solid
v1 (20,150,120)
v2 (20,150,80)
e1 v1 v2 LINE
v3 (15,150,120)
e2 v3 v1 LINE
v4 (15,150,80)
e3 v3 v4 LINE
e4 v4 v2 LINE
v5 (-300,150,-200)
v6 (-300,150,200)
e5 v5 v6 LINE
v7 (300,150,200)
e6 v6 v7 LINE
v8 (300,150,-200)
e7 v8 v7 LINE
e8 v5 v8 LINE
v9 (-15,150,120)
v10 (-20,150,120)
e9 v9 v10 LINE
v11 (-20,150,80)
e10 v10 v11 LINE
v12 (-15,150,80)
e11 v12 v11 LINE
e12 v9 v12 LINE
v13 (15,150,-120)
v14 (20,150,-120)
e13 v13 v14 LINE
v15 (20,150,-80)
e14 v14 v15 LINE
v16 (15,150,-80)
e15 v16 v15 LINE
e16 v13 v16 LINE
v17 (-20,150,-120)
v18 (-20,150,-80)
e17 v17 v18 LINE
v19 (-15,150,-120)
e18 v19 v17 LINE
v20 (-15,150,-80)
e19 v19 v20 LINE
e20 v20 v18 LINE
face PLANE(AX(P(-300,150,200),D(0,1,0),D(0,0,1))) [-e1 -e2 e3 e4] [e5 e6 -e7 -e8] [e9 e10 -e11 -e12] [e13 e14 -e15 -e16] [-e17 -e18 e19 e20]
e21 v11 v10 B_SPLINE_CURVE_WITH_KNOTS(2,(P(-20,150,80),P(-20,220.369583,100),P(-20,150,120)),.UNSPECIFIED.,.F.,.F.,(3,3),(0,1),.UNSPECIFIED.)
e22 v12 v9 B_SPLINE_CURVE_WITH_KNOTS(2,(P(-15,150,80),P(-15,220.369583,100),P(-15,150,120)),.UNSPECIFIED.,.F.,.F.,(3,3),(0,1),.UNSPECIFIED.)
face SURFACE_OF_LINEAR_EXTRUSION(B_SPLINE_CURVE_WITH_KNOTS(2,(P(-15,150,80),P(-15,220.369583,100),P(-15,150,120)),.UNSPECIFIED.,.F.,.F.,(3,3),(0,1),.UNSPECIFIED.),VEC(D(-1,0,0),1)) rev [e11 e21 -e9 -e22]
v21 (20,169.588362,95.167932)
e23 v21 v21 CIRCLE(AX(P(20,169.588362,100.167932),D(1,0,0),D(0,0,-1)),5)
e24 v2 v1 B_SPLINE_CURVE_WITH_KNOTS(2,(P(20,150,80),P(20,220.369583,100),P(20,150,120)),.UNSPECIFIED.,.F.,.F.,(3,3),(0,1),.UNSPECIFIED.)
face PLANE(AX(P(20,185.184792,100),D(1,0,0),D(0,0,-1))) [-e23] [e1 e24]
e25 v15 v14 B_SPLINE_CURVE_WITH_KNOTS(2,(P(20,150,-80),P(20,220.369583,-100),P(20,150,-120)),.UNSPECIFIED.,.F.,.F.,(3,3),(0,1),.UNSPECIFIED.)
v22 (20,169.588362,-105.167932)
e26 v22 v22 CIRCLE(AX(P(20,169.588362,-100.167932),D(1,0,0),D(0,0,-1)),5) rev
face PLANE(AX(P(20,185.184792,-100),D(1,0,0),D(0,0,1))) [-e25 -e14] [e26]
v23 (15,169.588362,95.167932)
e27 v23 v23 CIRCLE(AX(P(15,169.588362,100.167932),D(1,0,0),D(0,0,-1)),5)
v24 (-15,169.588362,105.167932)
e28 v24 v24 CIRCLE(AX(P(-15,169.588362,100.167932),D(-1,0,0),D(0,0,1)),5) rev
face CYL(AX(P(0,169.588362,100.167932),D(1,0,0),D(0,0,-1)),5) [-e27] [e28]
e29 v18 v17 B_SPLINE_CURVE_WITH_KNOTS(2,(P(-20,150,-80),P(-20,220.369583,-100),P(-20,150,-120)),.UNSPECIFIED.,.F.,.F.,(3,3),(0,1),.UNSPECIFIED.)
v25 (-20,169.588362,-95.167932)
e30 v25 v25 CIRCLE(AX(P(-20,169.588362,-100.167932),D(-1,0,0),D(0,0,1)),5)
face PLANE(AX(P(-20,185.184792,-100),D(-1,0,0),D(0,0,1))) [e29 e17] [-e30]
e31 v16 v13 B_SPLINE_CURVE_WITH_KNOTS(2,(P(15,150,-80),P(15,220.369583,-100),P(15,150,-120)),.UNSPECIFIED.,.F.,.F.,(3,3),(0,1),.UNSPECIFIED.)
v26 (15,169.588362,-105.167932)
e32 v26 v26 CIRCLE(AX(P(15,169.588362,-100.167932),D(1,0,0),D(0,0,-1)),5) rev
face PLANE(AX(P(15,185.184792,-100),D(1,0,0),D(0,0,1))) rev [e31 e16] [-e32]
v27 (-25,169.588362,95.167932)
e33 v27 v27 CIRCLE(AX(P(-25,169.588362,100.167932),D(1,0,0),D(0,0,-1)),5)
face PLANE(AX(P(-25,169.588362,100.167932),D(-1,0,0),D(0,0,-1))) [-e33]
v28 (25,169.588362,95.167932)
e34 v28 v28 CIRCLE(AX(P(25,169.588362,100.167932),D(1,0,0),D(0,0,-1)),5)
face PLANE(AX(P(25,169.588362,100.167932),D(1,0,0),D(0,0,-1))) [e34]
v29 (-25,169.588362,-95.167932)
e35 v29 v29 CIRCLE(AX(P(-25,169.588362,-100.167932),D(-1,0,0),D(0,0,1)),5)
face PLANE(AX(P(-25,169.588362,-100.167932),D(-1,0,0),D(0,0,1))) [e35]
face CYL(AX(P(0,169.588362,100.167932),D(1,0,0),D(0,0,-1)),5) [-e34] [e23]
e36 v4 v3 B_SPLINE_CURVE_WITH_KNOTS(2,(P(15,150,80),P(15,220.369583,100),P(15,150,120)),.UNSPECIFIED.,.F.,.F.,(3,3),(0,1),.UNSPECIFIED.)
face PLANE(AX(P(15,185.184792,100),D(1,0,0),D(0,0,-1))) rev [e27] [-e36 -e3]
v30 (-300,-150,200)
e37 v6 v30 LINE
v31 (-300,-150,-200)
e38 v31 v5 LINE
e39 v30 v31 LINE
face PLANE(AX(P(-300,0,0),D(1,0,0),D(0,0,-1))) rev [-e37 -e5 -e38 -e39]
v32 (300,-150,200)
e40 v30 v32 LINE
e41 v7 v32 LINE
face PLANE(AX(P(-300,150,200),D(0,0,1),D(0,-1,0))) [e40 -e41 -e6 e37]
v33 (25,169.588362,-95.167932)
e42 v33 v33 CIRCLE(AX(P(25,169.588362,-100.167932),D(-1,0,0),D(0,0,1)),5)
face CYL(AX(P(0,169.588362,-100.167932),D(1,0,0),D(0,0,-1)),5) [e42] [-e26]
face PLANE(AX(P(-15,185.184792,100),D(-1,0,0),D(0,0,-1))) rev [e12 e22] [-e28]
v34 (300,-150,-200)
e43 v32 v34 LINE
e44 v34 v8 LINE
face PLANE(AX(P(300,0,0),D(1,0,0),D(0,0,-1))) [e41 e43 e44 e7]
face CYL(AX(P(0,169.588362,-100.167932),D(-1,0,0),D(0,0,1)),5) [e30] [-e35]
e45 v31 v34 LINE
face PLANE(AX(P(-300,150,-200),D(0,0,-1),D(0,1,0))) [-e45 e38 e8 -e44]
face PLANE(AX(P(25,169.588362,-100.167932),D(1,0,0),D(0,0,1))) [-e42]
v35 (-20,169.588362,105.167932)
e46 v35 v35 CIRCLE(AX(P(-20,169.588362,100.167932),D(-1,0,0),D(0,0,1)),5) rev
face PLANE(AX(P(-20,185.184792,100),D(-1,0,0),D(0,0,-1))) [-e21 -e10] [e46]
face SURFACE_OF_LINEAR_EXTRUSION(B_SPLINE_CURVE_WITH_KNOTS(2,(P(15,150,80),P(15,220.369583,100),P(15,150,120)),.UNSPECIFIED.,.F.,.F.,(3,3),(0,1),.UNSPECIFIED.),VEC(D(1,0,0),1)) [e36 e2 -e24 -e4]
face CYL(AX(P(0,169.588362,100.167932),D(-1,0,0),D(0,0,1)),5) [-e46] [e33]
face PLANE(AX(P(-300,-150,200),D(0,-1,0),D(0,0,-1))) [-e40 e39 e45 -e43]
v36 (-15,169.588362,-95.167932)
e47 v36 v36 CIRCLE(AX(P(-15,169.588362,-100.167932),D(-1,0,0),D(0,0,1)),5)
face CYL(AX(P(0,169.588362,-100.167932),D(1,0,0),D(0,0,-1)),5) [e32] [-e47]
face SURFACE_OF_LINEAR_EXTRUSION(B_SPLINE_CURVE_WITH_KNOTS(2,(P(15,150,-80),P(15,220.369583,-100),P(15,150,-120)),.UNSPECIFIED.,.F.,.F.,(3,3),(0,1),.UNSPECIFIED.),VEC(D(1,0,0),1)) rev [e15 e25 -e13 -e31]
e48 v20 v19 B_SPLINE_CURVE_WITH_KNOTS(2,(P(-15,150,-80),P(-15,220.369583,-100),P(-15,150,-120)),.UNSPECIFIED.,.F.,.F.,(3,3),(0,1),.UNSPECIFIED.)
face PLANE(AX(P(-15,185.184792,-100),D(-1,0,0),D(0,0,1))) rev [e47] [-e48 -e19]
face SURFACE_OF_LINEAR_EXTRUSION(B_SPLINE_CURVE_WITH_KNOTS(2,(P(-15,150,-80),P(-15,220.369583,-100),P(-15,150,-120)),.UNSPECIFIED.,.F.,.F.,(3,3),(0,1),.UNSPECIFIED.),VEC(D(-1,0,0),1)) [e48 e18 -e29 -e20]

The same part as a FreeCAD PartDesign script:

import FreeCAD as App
import Part
import Sketcher
from FreeCAD import Vector

doc = App.newDocument("Part")
params = doc.addObject("Spreadsheet::Sheet", "Params")
for row, (alias, value) in enumerate([
    ("sketch1_width", "300 mm"),
    ("sketch1_height", "400 mm"),
    ("pad1_length", "300 mm"),
    ("pad1_length2", "300 mm"),
    ("pad2_length", "5 mm"),
    ("sketch3_diameter", "10 mm"),
    ("pad3_length", "25 mm"),
    ("pad4_length", "5 mm"),
    ("sketch5_diameter", "10 mm"),
    ("pad5_length", "25 mm"),
], start=1):
    params.set(f"A{row}", alias)
    params.set(f"B{row}", "=" + value)
    params.setAlias(f"B{row}", alias)

body = doc.addObject("PartDesign::Body", "Body")

# Sketch on YZ plane
sketch1 = body.newObject("Sketcher::SketchObject", "Sketch")
sketch1.AttachmentSupport = (doc.getObject("YZ_Plane"), [""])
sketch1.MapMode = "FlatFace"
sketch1.addGeometry(Part.LineSegment(Vector(150, 200, 0), Vector(-150, 200, 0)), False)
sketch1.addGeometry(Part.LineSegment(Vector(-150, 200, 0), Vector(-150, -200, 0)), False)
sketch1.addGeometry(Part.LineSegment(Vector(-150, -200, 0), Vector(150, -200, 0)), False)
sketch1.addGeometry(Part.LineSegment(Vector(150, -200, 0), Vector(150, 200, 0)), False)
sketch1.addConstraint(Sketcher.Constraint("Coincident", 0, 2, 1, 1))
sketch1.addConstraint(Sketcher.Constraint("Coincident", 1, 2, 2, 1))
sketch1.addConstraint(Sketcher.Constraint("Coincident", 2, 2, 3, 1))
sketch1.addConstraint(Sketcher.Constraint("Coincident", 3, 2, 0, 1))
sketch1.addConstraint(Sketcher.Constraint("Horizontal", 0))
sketch1.addConstraint(Sketcher.Constraint("Vertical", 1))
sketch1.addConstraint(Sketcher.Constraint("Horizontal", 2))
sketch1.addConstraint(Sketcher.Constraint("Vertical", 3))
sketch1.addConstraint(Sketcher.Constraint("Symmetric", 0, 2, 2, 2, -1, 1))
sketch1.addConstraint(Sketcher.Constraint("DistanceX", 0, 2, 0, 1, 300.0))
sketch1.addConstraint(Sketcher.Constraint("DistanceY", 1, 2, 1, 1, 400.0))
sketch1.setExpression("Constraints[9]", "Params.sketch1_width")
sketch1.setExpression("Constraints[10]", "Params.sketch1_height")
pad1 = body.newObject("PartDesign::Pad", "Pad")
pad1.Profile = sketch1
pad1.Type = "TwoLengths"
pad1.setExpression("Length", "Params.pad1_length")
pad1.setExpression("Length2", "Params.pad1_length2")

# Sketch on YZ plane
sketch2 = body.newObject("Sketcher::SketchObject", "Sketch001")
sketch2.AttachmentSupport = (doc.getObject("YZ_Plane"), [""])
sketch2.MapMode = "FlatFace"
sketch2.AttachmentOffset = App.Placement(Vector(0, 0, 20), App.Rotation())
sketch2.addGeometry(Part.LineSegment(Vector(150, 120, 0), Vector(150, 80, 0)), False)
sketch2.addGeometry(Part.BSplineCurve([Vector(150, 120, 0), Vector(220.369583, 100, 0), Vector(150, 80, 0)], [3, 3], [0, 1], False, 2, [1, 1, 1], False), False)
sketch2.addConstraint(Sketcher.Constraint("Block", 1))
sketch2.addConstraint(Sketcher.Constraint("Coincident", 0, 1, 1, 1))
sketch2.addConstraint(Sketcher.Constraint("Coincident", 1, 2, 0, 2))
pad2 = body.newObject("PartDesign::Pad", "Pad001")
pad2.Profile = sketch2
pad2.setExpression("Length", "Params.pad2_length")
pad2.Reversed = True

# Sketch on YZ plane
sketch3 = body.newObject("Sketcher::SketchObject", "Sketch002")
sketch3.AttachmentSupport = (doc.getObject("YZ_Plane"), [""])
sketch3.MapMode = "FlatFace"
sketch3.addGeometry(Part.Circle(Vector(170, 100, 0), Vector(0, 0, 1), 5), False)
sketch3.addConstraint(Sketcher.Constraint("Diameter", 0, 10.0))
sketch3.addConstraint(Sketcher.Constraint("DistanceY", -1, 1, 0, 3, 100.167932))
sketch3.addConstraint(Sketcher.Constraint("DistanceX", -1, 1, 0, 3, 169.588362))
sketch3.setExpression("Constraints[0]", "Params.sketch3_diameter")
pad3 = body.newObject("PartDesign::Pad", "Pad002")
pad3.Profile = sketch3
pad3.setExpression("Length", "Params.pad3_length")
doc.recompute()

mirrored = body.newObject("PartDesign::Mirrored", "Mirrored")
mirrored.Originals = [pad2, pad3]
mirrored.MirrorPlane = (doc.getObject("YZ_Plane"), [""])
body.Tip = mirrored
doc.recompute()

mirrored2 = body.newObject("PartDesign::Mirrored", "Mirrored001")
mirrored2.Originals = [pad3, pad2]
mirrored2.MirrorPlane = (doc.getObject("XY_Plane"), [""])
body.Tip = mirrored2

# Sketch on YZ plane
sketch4 = body.newObject("Sketcher::SketchObject", "Sketch003")
sketch4.AttachmentSupport = (doc.getObject("YZ_Plane"), [""])
sketch4.MapMode = "FlatFace"
sketch4.AttachmentOffset = App.Placement(Vector(0, 0, -20), App.Rotation())
sketch4.addGeometry(Part.LineSegment(Vector(150, -120, 0), Vector(150, -80, 0)), False)
sketch4.addGeometry(Part.BSplineCurve([Vector(150, -120, 0), Vector(220.369583, -100, 0), Vector(150, -80, 0)], [3, 3], [0, 1], False, 2, [1, 1, 1], False), False)
sketch4.addConstraint(Sketcher.Constraint("Block", 1))
sketch4.addConstraint(Sketcher.Constraint("Coincident", 0, 1, 1, 1))
sketch4.addConstraint(Sketcher.Constraint("Coincident", 1, 2, 0, 2))
pad4 = body.newObject("PartDesign::Pad", "Pad003")
pad4.Profile = sketch4
pad4.setExpression("Length", "Params.pad4_length")

# Sketch on YZ plane
sketch5 = body.newObject("Sketcher::SketchObject", "Sketch004")
sketch5.AttachmentSupport = (doc.getObject("YZ_Plane"), [""])
sketch5.MapMode = "FlatFace"
sketch5.addGeometry(Part.Circle(Vector(170, -100, 0), Vector(0, 0, 1), 5), False)
sketch5.addConstraint(Sketcher.Constraint("Diameter", 0, 10.0))
sketch5.addConstraint(Sketcher.Constraint("DistanceY", 0, 3, -1, 1, 100.167932))
sketch5.addConstraint(Sketcher.Constraint("DistanceX", -1, 1, 0, 3, 169.588362))
sketch5.setExpression("Constraints[0]", "Params.sketch5_diameter")
pad5 = body.newObject("PartDesign::Pad", "Pad004")
pad5.Profile = sketch5
pad5.setExpression("Length", "Params.pad5_length")
pad5.Reversed = True

doc.recompute()
